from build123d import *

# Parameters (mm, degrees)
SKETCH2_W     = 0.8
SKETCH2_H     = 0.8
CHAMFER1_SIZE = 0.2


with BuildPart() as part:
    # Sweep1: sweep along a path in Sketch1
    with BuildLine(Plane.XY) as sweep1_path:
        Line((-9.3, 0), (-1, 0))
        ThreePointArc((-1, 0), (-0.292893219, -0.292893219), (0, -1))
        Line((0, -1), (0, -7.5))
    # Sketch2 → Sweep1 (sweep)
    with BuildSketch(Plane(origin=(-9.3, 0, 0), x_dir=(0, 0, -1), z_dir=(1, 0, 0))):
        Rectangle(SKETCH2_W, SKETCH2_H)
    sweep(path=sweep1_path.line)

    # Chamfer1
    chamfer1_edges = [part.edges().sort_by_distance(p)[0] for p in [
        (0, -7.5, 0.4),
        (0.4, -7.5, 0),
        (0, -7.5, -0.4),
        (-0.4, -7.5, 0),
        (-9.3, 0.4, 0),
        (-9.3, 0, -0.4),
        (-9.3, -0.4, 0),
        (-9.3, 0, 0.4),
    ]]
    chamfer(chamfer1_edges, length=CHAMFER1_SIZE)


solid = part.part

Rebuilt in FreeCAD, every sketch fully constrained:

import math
import FreeCAD as App
import Part
import Sketcher
from FreeCAD import Vector


def edges_at(feature, points):
    """Names of the edges that pass closest to the given points."""
    edges = feature.Shape.Edges
    near = lambda p: min(range(len(edges)), key=lambda i: edges[i].distToShape(Part.Vertex(*p))[0])
    return sorted({f"Edge{near(p) + 1}" for p in points})


def add_polygon(sketch, points):
    """Adds a closed chain of lines whose ends are joined by coincident constraints."""
    first, n = sketch.GeometryCount, len(points)
    for a, b in zip(points, points[1:] + points[:1]):
        sketch.addGeometry(Part.LineSegment(App.Vector(*a, 0), App.Vector(*b, 0)), False)
    for i in range(n):
        sketch.addConstraint(Sketcher.Constraint("Coincident", first + i, 2, first + (i + 1) % n, 1))

doc = App.newDocument("Part")
params = doc.addObject("Spreadsheet::Sheet", "Params")
for row, (alias, value) in enumerate([
    ("sketch1_width", "0.8 mm"),
    ("sketch2_radius", "1 mm"),
    ("sketch2_width", "8.3 mm"),
    ("sketch2_height", "6.5 mm"),
    ("chamfer_size", "0.2 mm"),
], start=1):
    params.set(f"A{row}", alias)
    params.set(f"B{row}", "=" + value)
    params.setAlias(f"B{row}", alias)

body = doc.addObject("PartDesign::Body", "Body")

# Sketch on YZ plane
sketch1 = body.newObject("Sketcher::SketchObject", "Sketch")
sketch1.AttachmentSupport = (doc.getObject("YZ_Plane"), [""])
sketch1.MapMode = "FlatFace"
sketch1.AttachmentOffset = App.Placement(Vector(0, 0, -9.3), App.Rotation())
add_polygon(sketch1, [(0.4, 0.4), (-0.4, 0.4), (-0.4, -0.4), (0.4, -0.4)])  # lines 0-3
sketch1.addConstraint([
    Sketcher.Constraint("Horizontal", 0),
    Sketcher.Constraint("Vertical", 1),
    Sketcher.Constraint("Horizontal", 2),
    Sketcher.Constraint("Vertical", 3),
    Sketcher.Constraint("Symmetric", 0, 2, 2, 2, -1, 1),
    Sketcher.Constraint("Equal", 2, 1),
    Sketcher.Constraint("DistanceX", 0, 2, 0, 1, 0.8),
])
sketch1.setExpression("Constraints[10]", "Params.sketch1_width")

# Sketch on XY plane
sketch2 = body.newObject("Sketcher::SketchObject", "Sketch001")
sketch2.AttachmentSupport = (doc.getObject("XY_Plane"), [""])
sketch2.MapMode = "FlatFace"
sketch2.addGeometry([
    Part.LineSegment(Vector(-9.3, 0, 0), Vector(-1, 0, 0)),
    Part.ArcOfCircle(Part.Circle(Vector(-1, -1, 0), Vector(0, 0, 1), 1), math.radians(0), math.radians(90)),
    Part.LineSegment(Vector(0, -1, 0), Vector(0, -7.5, 0)),
], False)
sketch2.addConstraint([
    Sketcher.Constraint("Tangent", 0, 2, 1, 2),
    Sketcher.Constraint("Tangent", 1, 1, 2, 1),
    Sketcher.Constraint("Horizontal", 0),
    Sketcher.Constraint("Vertical", 2),
    Sketcher.Constraint("PointOnObject", 0, 1, -1),
    Sketcher.Constraint("PointOnObject", 1, 1, -2),
    Sketcher.Constraint("Radius", 1, 1.0),
    Sketcher.Constraint("DistanceX", 0, 1, 0, 2, 8.3),
    Sketcher.Constraint("DistanceY", 2, 2, 2, 1, 6.5),
])
sketch2.setExpression("Constraints[6]", "Params.sketch2_radius")
sketch2.setExpression("Constraints[7]", "Params.sketch2_width")
sketch2.setExpression("Constraints[8]", "Params.sketch2_height")
doc.recompute()

additivepipe = body.newObject("PartDesign::AdditivePipe", "AdditivePipe")
additivepipe.Profile = sketch1
additivepipe.Spine = (sketch2, ["Edge1", "Edge2", "Edge3"])
doc.recompute()

chamfer = body.newObject("PartDesign::Chamfer", "Chamfer")
chamfer.Base = (additivepipe, edges_at(additivepipe, [
    (0, -7.5, 0.4),
    (0.4, -7.5, 0),
    (0, -7.5, -0.4),
    (-0.4, -7.5, 0),
    (-9.3, 0.4, 0),
    (-9.3, 0, -0.4),
    (-9.3, -0.4, 0),
    (-9.3, 0, 0.4),
]))
chamfer.setExpression("Size", "Params.chamfer_size")

doc.recompute()
